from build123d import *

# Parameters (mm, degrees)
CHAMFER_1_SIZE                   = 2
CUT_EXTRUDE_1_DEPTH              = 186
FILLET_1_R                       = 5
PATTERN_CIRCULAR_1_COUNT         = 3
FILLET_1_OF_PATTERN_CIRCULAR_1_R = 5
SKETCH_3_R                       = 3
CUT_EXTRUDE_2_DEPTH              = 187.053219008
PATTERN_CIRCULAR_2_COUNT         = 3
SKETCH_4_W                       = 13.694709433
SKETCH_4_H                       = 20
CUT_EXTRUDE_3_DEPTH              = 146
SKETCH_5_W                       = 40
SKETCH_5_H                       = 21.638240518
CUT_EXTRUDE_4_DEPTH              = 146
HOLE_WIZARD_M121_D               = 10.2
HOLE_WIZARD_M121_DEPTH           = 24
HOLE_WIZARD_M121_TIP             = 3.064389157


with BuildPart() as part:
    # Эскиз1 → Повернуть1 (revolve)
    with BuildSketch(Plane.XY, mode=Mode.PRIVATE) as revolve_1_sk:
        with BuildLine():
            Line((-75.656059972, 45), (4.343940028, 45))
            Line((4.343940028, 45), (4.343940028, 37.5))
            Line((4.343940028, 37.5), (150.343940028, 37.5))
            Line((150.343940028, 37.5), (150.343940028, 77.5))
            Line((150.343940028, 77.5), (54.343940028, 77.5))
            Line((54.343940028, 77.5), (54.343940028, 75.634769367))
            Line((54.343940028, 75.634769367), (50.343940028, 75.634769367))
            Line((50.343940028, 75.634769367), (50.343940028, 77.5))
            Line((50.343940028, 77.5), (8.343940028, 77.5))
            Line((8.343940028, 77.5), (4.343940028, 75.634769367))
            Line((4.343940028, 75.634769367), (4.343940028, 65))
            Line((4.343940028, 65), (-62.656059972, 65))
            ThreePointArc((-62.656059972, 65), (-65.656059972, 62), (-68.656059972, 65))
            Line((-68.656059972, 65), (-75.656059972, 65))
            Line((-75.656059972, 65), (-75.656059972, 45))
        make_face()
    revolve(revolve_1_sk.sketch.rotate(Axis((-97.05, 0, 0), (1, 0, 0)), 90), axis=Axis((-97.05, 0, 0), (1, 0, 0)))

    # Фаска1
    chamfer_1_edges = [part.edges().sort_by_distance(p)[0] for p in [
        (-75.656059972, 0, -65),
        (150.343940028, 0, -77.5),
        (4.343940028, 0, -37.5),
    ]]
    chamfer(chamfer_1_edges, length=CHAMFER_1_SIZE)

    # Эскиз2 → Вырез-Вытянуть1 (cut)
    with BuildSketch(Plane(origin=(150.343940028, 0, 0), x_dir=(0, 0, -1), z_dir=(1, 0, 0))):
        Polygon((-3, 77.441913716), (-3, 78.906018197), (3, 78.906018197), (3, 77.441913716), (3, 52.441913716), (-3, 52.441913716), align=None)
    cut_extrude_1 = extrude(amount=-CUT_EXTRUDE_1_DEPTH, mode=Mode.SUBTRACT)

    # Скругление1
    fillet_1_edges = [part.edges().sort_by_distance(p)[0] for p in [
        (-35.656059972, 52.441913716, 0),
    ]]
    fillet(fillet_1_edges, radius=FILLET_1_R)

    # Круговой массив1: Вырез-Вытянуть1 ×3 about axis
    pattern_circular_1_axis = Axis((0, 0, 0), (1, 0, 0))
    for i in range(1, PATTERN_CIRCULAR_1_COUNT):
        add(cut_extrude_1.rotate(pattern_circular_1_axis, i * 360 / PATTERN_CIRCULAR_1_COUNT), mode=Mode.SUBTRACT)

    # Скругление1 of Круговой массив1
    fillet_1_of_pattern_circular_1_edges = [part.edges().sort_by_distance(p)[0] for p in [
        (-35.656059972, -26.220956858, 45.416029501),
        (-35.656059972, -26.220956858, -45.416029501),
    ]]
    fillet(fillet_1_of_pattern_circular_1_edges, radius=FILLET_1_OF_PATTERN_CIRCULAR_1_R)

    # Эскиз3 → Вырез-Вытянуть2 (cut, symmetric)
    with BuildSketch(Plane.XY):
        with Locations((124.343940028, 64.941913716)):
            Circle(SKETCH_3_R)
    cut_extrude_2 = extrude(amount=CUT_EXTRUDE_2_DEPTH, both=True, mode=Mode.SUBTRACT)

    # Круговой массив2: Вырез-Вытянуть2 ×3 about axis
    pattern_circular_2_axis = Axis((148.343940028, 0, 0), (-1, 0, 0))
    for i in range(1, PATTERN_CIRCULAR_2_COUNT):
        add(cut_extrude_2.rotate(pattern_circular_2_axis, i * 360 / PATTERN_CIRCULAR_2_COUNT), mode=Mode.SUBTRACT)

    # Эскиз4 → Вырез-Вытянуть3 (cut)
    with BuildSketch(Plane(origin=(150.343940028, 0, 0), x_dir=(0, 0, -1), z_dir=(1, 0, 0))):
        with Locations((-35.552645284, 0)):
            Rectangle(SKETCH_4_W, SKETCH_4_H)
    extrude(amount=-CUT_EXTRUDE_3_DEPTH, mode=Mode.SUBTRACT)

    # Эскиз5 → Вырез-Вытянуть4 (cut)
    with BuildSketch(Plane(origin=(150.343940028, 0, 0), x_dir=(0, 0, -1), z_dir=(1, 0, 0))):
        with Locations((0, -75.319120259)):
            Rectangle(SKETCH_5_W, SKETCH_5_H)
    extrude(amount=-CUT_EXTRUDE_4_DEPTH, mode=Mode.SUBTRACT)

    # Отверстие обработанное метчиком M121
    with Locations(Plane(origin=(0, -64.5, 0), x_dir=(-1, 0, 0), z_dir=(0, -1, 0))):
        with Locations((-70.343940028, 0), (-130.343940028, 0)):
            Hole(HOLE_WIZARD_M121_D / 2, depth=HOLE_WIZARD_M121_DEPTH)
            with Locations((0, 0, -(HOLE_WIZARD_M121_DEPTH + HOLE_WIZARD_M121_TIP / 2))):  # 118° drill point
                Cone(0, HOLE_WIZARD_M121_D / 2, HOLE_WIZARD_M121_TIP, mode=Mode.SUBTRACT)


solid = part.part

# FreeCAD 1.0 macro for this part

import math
import FreeCAD as App
import Part
import Sketcher

V = App.Vector
Q = App.Units.Quantity


def edges_at(feature, points):
    """Names of the edges that pass closest to the given points."""
    edges = feature.Shape.Edges
    near = lambda p: min(range(len(edges)), key=lambda i: edges[i].distToShape(Part.Vertex(*p))[0])
    return sorted({f"Edge{near(p) + 1}" for p in points})


def add_polygon(sketch, points):
    """Adds a closed chain of lines whose ends are joined by coincident constraints."""
    first, n = sketch.GeometryCount, len(points)
    for a, b in zip(points, points[1:] + points[:1]):
        sketch.addGeometry(Part.LineSegment(App.Vector(*a, 0), App.Vector(*b, 0)), False)
    for i in range(n):
        sketch.addConstraint(Sketcher.Constraint("Coincident", first + i, 2, first + (i + 1) % n, 1))

doc = App.newDocument("Part")
params = doc.addObject("Spreadsheet::Sheet", "Params")
for row, (alias, value) in enumerate([
    ("sketch1_radius", "3 mm"),
    ("sketch1_width", "80 mm"),
    ("sketch1_width2", "146 mm"),
    ("sketch1_width3", "96 mm"),
    ("sketch1_width4", "4 mm"),
    ("revolution_angle", "360 deg"),
    ("chamfer_size", "2 mm"),
    ("sketch2_height", "6 mm"),
    ("pocket1_length", "186 mm"),
    ("fillet_radius", "5 mm"),
    ("fillet2_radius", "5 mm"),
    ("sketch3_diameter", "6 mm"),
    ("pocket2_length", "374.106438 mm"),
    ("sketch4_width", "20 mm"),
    ("pocket3_length", "146 mm"),
    ("sketch5_height", "40 mm"),
    ("pocket4_length", "146 mm"),
    ("sketch6_diameter", "10.2 mm"),
    ("hole_diameter", "10.2 mm"),
    ("hole_depth", "24 mm"),
], start=1):
    params.set(f"A{row}", alias)
    params.set(f"B{row}", "=" + value)
    params.setAlias(f"B{row}", alias)

body = doc.addObject("PartDesign::Body", "Body")

# Sketch on XY plane
sketch1 = body.newObject("Sketcher::SketchObject", "Sketch")
sketch1.AttachmentSupport = (doc.getObject("XY_Plane"), [""])
sketch1.MapMode = "FlatFace"
sketch1.addGeometry(Part.LineSegment(V(-75.65606, 45, 0), V(4.34394, 45, 0)), False)
sketch1.addGeometry(Part.LineSegment(V(4.34394, 45, 0), V(4.34394, 37.5, 0)), False)
sketch1.addGeometry(Part.LineSegment(V(4.34394, 37.5, 0), V(150.34394, 37.5, 0)), False)
sketch1.addGeometry(Part.LineSegment(V(150.34394, 37.5, 0), V(150.34394, 77.5, 0)), False)
sketch1.addGeometry(Part.LineSegment(V(150.34394, 77.5, 0), V(54.34394, 77.5, 0)), False)
sketch1.addGeometry(Part.LineSegment(V(54.34394, 77.5, 0), V(54.34394, 75.634769, 0)), False)
sketch1.addGeometry(Part.LineSegment(V(54.34394, 75.634769, 0), V(50.34394, 75.634769, 0)), False)
sketch1.addGeometry(Part.LineSegment(V(50.34394, 75.634769, 0), V(50.34394, 77.5, 0)), False)
sketch1.addGeometry(Part.LineSegment(V(50.34394, 77.5, 0), V(8.34394, 77.5, 0)), False)
sketch1.addGeometry(Part.LineSegment(V(8.34394, 77.5, 0), V(4.34394, 75.634769, 0)), False)
sketch1.addGeometry(Part.LineSegment(V(4.34394, 75.634769, 0), V(4.34394, 65, 0)), False)
sketch1.addGeometry(Part.LineSegment(V(4.34394, 65, 0), V(-62.65606, 65, 0)), False)
sketch1.addGeometry(Part.ArcOfCircle(Part.Circle(V(-65.65606, 65, 0), V(0, 0, 1), 3), math.radians(180), math.radians(360)), False)
sketch1.addGeometry(Part.LineSegment(V(-68.65606, 65, 0), V(-75.65606, 65, 0)), False)
sketch1.addGeometry(Part.LineSegment(V(-75.65606, 65, 0), V(-75.65606, 45, 0)), False)
sketch1.addConstraint(Sketcher.Constraint("Coincident", 0, 2, 1, 1))
sketch1.addConstraint(Sketcher.Constraint("Coincident", 1, 2, 2, 1))
sketch1.addConstraint(Sketcher.Constraint("Coincident", 2, 2, 3, 1))
sketch1.addConstraint(Sketcher.Constraint("Coincident", 3, 2, 4, 1))
sketch1.addConstraint(Sketcher.Constraint("Coincident", 4, 2, 5, 1))
sketch1.addConstraint(Sketcher.Constraint("Coincident", 5, 2, 6, 1))
sketch1.addConstraint(Sketcher.Constraint("Coincident", 6, 2, 7, 1))
sketch1.addConstraint(Sketcher.Constraint("Coincident", 7, 2, 8, 1))
sketch1.addConstraint(Sketcher.Constraint("Coincident", 8, 2, 9, 1))
sketch1.addConstraint(Sketcher.Constraint("Coincident", 9, 2, 10, 1))
sketch1.addConstraint(Sketcher.Constraint("Coincident", 10, 2, 11, 1))
sketch1.addConstraint(Sketcher.Constraint("Coincident", 11, 2, 12, 2))
sketch1.addConstraint(Sketcher.Constraint("Coincident", 12, 1, 13, 1))
sketch1.addConstraint(Sketcher.Constraint("Coincident", 13, 2, 14, 1))
sketch1.addConstraint(Sketcher.Constraint("Coincident", 14, 2, 0, 1))
sketch1.addConstraint(Sketcher.Constraint("Horizontal", 0))
sketch1.addConstraint(Sketcher.Constraint("Vertical", 1))
sketch1.addConstraint(Sketcher.Constraint("Horizontal", 2))
sketch1.addConstraint(Sketcher.Constraint("Vertical", 3))
sketch1.addConstraint(Sketcher.Constraint("Horizontal", 4))
sketch1.addConstraint(Sketcher.Constraint("Vertical", 5))
sketch1.addConstraint(Sketcher.Constraint("Horizontal", 6))
sketch1.addConstraint(Sketcher.Constraint("Vertical", 7))
sketch1.addConstraint(Sketcher.Constraint("Horizontal", 8))
sketch1.addConstraint(Sketcher.Constraint("Vertical", 10))
sketch1.addConstraint(Sketcher.Constraint("Horizontal", 11))
sketch1.addConstraint(Sketcher.Constraint("Horizontal", 13))
sketch1.addConstraint(Sketcher.Constraint("Vertical", 14))
sketch1.addConstraint(Sketcher.Constraint("Horizontal", 4, 2, 7, 2))
sketch1.addConstraint(Sketcher.Constraint("Horizontal", 6, 2, 9, 2))
sketch1.addConstraint(Sketcher.Constraint("Horizontal", 12, 3, 10, 2))
sketch1.addConstraint(Sketcher.Constraint("Horizontal", 11, 2, 12, 1))
sketch1.addConstraint(Sketcher.Constraint("Vertical", 1, 2, 9, 2))
sketch1.addConstraint(Sketcher.Constraint("Radius", 12, 3.0))
sketch1.addConstraint(Sketcher.Constraint("DistanceX", 0, 1, 0, 2, 80.0))
sketch1.addConstraint(Sketcher.Constraint("DistanceX", 2, 1, 2, 2, 146.0))
sketch1.addConstraint(Sketcher.Constraint("DistanceX", 4, 2, 4, 1, 96.0))
sketch1.addConstraint(Sketcher.Constraint("DistanceX", 6, 2, 6, 1, 4.0))
sketch1.addConstraint(Sketcher.Constraint("DistanceX", 8, 2, 8, 1, 42.0))
sketch1.addConstraint(Sketcher.Constraint("DistanceX", 11, 2, 11, 1, 67.0))
sketch1.addConstraint(Sketcher.Constraint("DistanceY", 3, 1, 3, 2, 40.0))
sketch1.addConstraint(Sketcher.Constraint("DistanceY", 14, 2, 14, 1, 20.0))
sketch1.addConstraint(Sketcher.Constraint("Angle", 9, Q("-155 deg")))
sketch1.addConstraint(Sketcher.Constraint("DistanceY", 1, 2, 1, 1, 7.5))
sketch1.addConstraint(Sketcher.Constraint("DistanceY", -1, 1, 12, 3, 65.0))
sketch1.addConstraint(Sketcher.Constraint("DistanceX", 12, 3, -1, 1, 65.65606))
sketch1.setExpression("Constraints[33]", "Params.sketch1_radius")
sketch1.setExpression("Constraints[34]", "Params.sketch1_width")
sketch1.setExpression("Constraints[35]", "Params.sketch1_width2")
sketch1.setExpression("Constraints[36]", "Params.sketch1_width3")
sketch1.setExpression("Constraints[37]", "Params.sketch1_width4")
revolution = body.newObject("PartDesign::Revolution", "Revolution")
revolution.Profile = sketch1
revolution.ReferenceAxis = (sketch1, ["H_Axis"])
revolution.setExpression("Angle", "Params.revolution_angle")
doc.recompute()

chamfer = body.newObject("PartDesign::Chamfer", "Chamfer")
chamfer.Base = (revolution, edges_at(revolution, [(-75.656, 0, -65), (150.344, 0, -77.5), (4.344, 0, -37.5)]))
chamfer.setExpression("Size", "Params.chamfer_size")

# Sketch on YZ plane
sketch2 = body.newObject("Sketcher::SketchObject", "Sketch001")
sketch2.AttachmentSupport = (doc.getObject("YZ_Plane"), [""])
sketch2.MapMode = "FlatFace"
sketch2.AttachmentOffset = App.Placement(V(0, 0, 150.34394), App.Rotation())
add_polygon(sketch2, [(78.906018, 3), (52.441914, 3), (52.441914, -3), (78.906018, -3)])  # lines 0-3
sketch2.addConstraint(Sketcher.Constraint("Horizontal", 0))
sketch2.addConstraint(Sketcher.Constraint("Vertical", 1))
sketch2.addConstraint(Sketcher.Constraint("Horizontal", 2))
sketch2.addConstraint(Sketcher.Constraint("Vertical", 3))
sketch2.addConstraint(Sketcher.Constraint("DistanceY", 1, 2, 1, 1, 6.0))
sketch2.addConstraint(Sketcher.Constraint("DistanceY", -1, 1, 0, 2, 3.0))
sketch2.addConstraint(Sketcher.Constraint("DistanceX", 0, 2, 0, 1, 26.464104))
sketch2.addConstraint(Sketcher.Constraint("DistanceX", -1, 1, 2, 2, 78.906018))
sketch2.setExpression("Constraints[8]", "Params.sketch2_height")
pocket1 = body.newObject("PartDesign::Pocket", "Pocket")
pocket1.Profile = sketch2
pocket1.setExpression("Length", "Params.pocket1_length")
doc.recompute()

fillet = body.newObject("PartDesign::Fillet", "Fillet")
fillet.Base = (pocket1, edges_at(pocket1, [(-35.656, 52.442, 0)]))
fillet.setExpression("Radius", "Params.fillet_radius")
doc.recompute()

polarpattern = body.newObject("PartDesign::PolarPattern", "PolarPattern")
polarpattern.Originals = [pocket1]
polarpattern.Axis = (doc.getObject("X_Axis"), [""])
polarpattern.Angle = 360
polarpattern.Occurrences = 3
body.Tip = polarpattern
doc.recompute()

fillet2 = body.newObject("PartDesign::Fillet", "Fillet001")
fillet2.Base = (polarpattern, edges_at(polarpattern, [(-35.656, -26.221, 45.416), (-35.656, -26.221, -45.416)]))
fillet2.setExpression("Radius", "Params.fillet2_radius")

# Sketch on XY plane
sketch3 = body.newObject("Sketcher::SketchObject", "Sketch002")
sketch3.AttachmentSupport = (doc.getObject("XY_Plane"), [""])
sketch3.MapMode = "FlatFace"
sketch3.addGeometry(Part.Circle(V(124.34394, 64.941914, 0), V(0, 0, 1), 3), False)
sketch3.addConstraint(Sketcher.Constraint("Diameter", 0, 6.0))
sketch3.addConstraint(Sketcher.Constraint("DistanceX", -1, 1, 0, 3, 124.34394))
sketch3.addConstraint(Sketcher.Constraint("DistanceY", -1, 1, 0, 3, 64.941914))
sketch3.setExpression("Constraints[0]", "Params.sketch3_diameter")
pocket2 = body.newObject("PartDesign::Pocket", "Pocket001")
pocket2.Profile = sketch3
pocket2.setExpression("Length", "Params.pocket2_length")
pocket2.Midplane = True
doc.recompute()

polarpattern2 = body.newObject("PartDesign::PolarPattern", "PolarPattern001")
polarpattern2.Originals = [pocket2]
polarpattern2.Axis = (doc.getObject("X_Axis"), [""])
polarpattern2.Angle = 360
polarpattern2.Occurrences = 3
body.Tip = polarpattern2

# Sketch on YZ plane
sketch4 = body.newObject("Sketcher::SketchObject", "Sketch003")
sketch4.AttachmentSupport = (doc.getObject("YZ_Plane"), [""])
sketch4.MapMode = "FlatFace"
sketch4.AttachmentOffset = App.Placement(V(0, 0, 150.34394), App.Rotation())
add_polygon(sketch4, [(10, 42.4), (-10, 42.4), (-10, 28.705291), (10, 28.705291)])  # lines 0-3
sketch4.addConstraint(Sketcher.Constraint("Horizontal", 0))
sketch4.addConstraint(Sketcher.Constraint("Vertical", 1))
sketch4.addConstraint(Sketcher.Constraint("Horizontal", 2))
sketch4.addConstraint(Sketcher.Constraint("Vertical", 3))
sketch4.addConstraint(Sketcher.Constraint("DistanceX", 0, 2, 0, 1, 20.0))
sketch4.addConstraint(Sketcher.Constraint("DistanceX", 0, 2, -1, 1, 10.0))
sketch4.addConstraint(Sketcher.Constraint("DistanceY", -1, 1, 0, 2, 42.4))
sketch4.addConstraint(Sketcher.Constraint("DistanceY", 1, 2, 1, 1, 13.694709))
sketch4.setExpression("Constraints[8]", "Params.sketch4_width")
pocket3 = body.newObject("PartDesign::Pocket", "Pocket002")
pocket3.Profile = sketch4
pocket3.setExpression("Length", "Params.pocket3_length")

# Sketch on YZ plane
sketch5 = body.newObject("Sketcher::SketchObject", "Sketch004")
sketch5.AttachmentSupport = (doc.getObject("YZ_Plane"), [""])
sketch5.MapMode = "FlatFace"
sketch5.AttachmentOffset = App.Placement(V(0, 0, 150.34394), App.Rotation())
add_polygon(sketch5, [(-64.5, 20), (-86.138241, 20), (-86.138241, -20), (-64.5, -20)])  # lines 0-3
sketch5.addConstraint(Sketcher.Constraint("Horizontal", 0))
sketch5.addConstraint(Sketcher.Constraint("Vertical", 1))
sketch5.addConstraint(Sketcher.Constraint("Horizontal", 2))
sketch5.addConstraint(Sketcher.Constraint("Vertical", 3))
sketch5.addConstraint(Sketcher.Constraint("DistanceY", 1, 2, 1, 1, 40.0))
sketch5.addConstraint(Sketcher.Constraint("DistanceY", -1, 1, 0, 2, 20.0))
sketch5.addConstraint(Sketcher.Constraint("DistanceX", 2, 2, -1, 1, 64.5))
sketch5.addConstraint(Sketcher.Constraint("DistanceX", 0, 2, 0, 1, 21.638241))
sketch5.setExpression("Constraints[8]", "Params.sketch5_height")
pocket4 = body.newObject("PartDesign::Pocket", "Pocket003")
pocket4.Profile = sketch5
pocket4.setExpression("Length", "Params.pocket4_length")

# Sketch on XZ plane
sketch6 = body.newObject("Sketcher::SketchObject", "Sketch005")
sketch6.AttachmentSupport = (doc.getObject("XZ_Plane"), [""])
sketch6.MapMode = "FlatFace"
sketch6.AttachmentOffset = App.Placement(V(0, 0, 64.5), App.Rotation())
sketch6.addGeometry(Part.Circle(V(70.34394, 0, 0), V(0, 0, 1), 5.1), False)
sketch6.addGeometry(Part.Circle(V(130.34394, 0, 0), V(0, 0, 1), 5.1), False)
sketch6.addConstraint(Sketcher.Constraint("Equal", 0, 1))
sketch6.addConstraint(Sketcher.Constraint("PointOnObject", 0, 3, -1))
sketch6.addConstraint(Sketcher.Constraint("PointOnObject", 1, 3, -1))
sketch6.addConstraint(Sketcher.Constraint("Diameter", 0, 10.2))
sketch6.addConstraint(Sketcher.Constraint("DistanceX", 0, 3, 1, 3, 60.0))
sketch6.addConstraint(Sketcher.Constraint("DistanceX", -1, 1, 0, 3, 70.34394))
sketch6.setExpression("Constraints[3]", "Params.sketch6_diameter")
doc.recompute()
hole = body.newObject("PartDesign::Hole", "Hole")
hole.Profile = sketch6
hole.ThreadType = "None"
hole.setExpression("Diameter", "Params.hole_diameter")
hole.DepthType = "Dimension"
hole.setExpression("Depth", "Params.hole_depth")
hole.DrillPoint = "Angled"
hole.DrillPointAngle = 118

doc.recompute()
